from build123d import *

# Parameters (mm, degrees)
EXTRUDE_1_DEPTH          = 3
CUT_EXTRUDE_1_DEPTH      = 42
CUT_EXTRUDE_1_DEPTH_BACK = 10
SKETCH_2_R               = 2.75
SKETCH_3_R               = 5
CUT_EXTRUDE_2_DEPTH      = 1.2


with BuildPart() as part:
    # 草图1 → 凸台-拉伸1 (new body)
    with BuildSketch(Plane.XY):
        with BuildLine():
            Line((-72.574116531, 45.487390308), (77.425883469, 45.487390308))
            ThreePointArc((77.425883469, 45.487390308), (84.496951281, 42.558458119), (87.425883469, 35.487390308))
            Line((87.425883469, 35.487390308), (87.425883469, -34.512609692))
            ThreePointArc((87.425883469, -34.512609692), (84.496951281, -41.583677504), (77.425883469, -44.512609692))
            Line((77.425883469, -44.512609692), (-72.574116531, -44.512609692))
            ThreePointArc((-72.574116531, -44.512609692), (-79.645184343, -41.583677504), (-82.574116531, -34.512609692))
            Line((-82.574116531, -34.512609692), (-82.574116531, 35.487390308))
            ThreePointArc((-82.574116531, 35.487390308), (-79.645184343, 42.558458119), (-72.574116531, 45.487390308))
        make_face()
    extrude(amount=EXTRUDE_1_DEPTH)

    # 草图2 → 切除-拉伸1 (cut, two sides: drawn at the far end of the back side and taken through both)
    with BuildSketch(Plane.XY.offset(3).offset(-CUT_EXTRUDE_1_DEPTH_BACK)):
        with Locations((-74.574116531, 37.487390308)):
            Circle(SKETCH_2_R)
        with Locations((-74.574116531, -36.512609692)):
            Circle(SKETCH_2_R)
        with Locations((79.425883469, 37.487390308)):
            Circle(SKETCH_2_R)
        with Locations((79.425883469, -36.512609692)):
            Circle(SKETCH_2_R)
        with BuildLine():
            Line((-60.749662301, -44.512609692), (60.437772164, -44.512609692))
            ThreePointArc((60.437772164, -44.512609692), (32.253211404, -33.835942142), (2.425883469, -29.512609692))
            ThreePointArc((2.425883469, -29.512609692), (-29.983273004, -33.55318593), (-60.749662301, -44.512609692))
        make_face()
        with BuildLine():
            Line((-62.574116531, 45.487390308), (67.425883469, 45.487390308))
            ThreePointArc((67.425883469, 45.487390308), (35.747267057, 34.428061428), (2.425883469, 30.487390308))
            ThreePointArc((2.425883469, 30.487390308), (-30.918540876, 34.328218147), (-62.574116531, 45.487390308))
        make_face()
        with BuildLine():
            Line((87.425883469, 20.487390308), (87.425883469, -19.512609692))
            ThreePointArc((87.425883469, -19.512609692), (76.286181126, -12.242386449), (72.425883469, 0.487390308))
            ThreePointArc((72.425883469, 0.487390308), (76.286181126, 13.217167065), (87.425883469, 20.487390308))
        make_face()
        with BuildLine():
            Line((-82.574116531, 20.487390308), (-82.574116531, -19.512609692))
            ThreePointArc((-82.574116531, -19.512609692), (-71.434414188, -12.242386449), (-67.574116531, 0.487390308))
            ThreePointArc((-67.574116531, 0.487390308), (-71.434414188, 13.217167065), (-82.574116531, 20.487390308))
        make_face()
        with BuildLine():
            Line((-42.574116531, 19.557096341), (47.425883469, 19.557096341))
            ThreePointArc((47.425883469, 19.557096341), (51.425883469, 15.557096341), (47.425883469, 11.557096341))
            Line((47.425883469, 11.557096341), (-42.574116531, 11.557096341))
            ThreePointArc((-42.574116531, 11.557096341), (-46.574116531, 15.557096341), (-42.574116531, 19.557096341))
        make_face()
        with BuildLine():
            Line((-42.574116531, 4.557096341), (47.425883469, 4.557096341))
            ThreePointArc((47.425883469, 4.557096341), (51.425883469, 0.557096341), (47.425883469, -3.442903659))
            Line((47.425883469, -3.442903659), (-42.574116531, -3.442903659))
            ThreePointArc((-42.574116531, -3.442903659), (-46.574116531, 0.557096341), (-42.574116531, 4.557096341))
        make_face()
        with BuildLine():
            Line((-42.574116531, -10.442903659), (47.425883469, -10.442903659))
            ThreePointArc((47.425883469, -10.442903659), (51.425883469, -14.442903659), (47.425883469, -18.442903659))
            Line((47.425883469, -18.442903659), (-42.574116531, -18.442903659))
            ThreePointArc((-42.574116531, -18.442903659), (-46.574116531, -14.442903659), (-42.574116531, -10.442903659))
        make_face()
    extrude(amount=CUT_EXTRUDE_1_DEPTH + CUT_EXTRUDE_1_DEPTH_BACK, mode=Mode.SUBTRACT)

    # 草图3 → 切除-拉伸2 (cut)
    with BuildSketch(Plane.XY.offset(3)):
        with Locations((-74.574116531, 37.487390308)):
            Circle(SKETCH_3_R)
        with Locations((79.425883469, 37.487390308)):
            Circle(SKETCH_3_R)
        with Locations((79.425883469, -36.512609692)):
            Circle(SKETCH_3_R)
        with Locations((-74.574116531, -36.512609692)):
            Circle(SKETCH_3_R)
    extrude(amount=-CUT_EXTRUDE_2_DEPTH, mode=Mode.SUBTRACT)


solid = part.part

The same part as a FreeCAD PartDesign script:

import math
import FreeCAD as App
import Part
import Sketcher
Q = App.Units.Quantity

doc = App.newDocument("Part")
params = doc.addObject("Spreadsheet::Sheet", "Params")
for row, (alias, value) in enumerate([
    ("sketch1_radius", "10 mm"),
    ("sketch1_width", "150 mm"),
    ("sketch1_height", "70 mm"),
    ("pad1_length", "3 mm"),
    ("sketch2_radius", "150 mm"),
    ("sketch2_radius2", "4 mm"),
    ("sketch2_diameter", "5.5 mm"),
    ("sketch2_width", "130 mm"),
    ("sketch2_width2", "90 mm"),
    ("sketch3_diameter", "10 mm"),
    ("pocket2_length", "1.2 mm"),
], start=1):
    params.set(f"A{row}", alias)
    params.set(f"B{row}", "=" + value)
    params.setAlias(f"B{row}", alias)

body = doc.addObject("PartDesign::Body", "Body")

# Sketch on XY plane
sketch1 = body.newObject("Sketcher::SketchObject", "Sketch")
sketch1.AttachmentSupport = (doc.getObject("XY_Plane"), [""])
sketch1.MapMode = "FlatFace"
sketch1.addGeometry([
    Part.LineSegment(App.Vector(77, 45, 0), App.Vector(-73, 45, 0)),  # 0
    Part.ArcOfCircle(Part.Circle(App.Vector(-73, 35, 0), App.Vector(0, 0, 1), 10), math.radians(90), math.radians(180)),  # 1
    Part.LineSegment(App.Vector(-83, 35, 0), App.Vector(-83, -35, 0)),  # 2
    Part.ArcOfCircle(Part.Circle(App.Vector(-73, -35, 0), App.Vector(0, 0, 1), 10), math.radians(180), math.radians(270)),  # 3
    Part.LineSegment(App.Vector(-73, -45, 0), App.Vector(77, -45, 0)),  # 4
    Part.ArcOfCircle(Part.Circle(App.Vector(77, -35, 0), App.Vector(0, 0, 1), 10), math.radians(-90), math.radians(0)),  # 5
    Part.LineSegment(App.Vector(87, -35, 0), App.Vector(87, 35, 0)),  # 6
    Part.ArcOfCircle(Part.Circle(App.Vector(77, 35, 0), App.Vector(0, 0, 1), 10), math.radians(0), math.radians(90)),  # 7
], False)
sketch1.addConstraint([
    Sketcher.Constraint("Tangent", 0, 2, 1, 1),
    Sketcher.Constraint("Tangent", 1, 2, 2, 1),
    Sketcher.Constraint("Tangent", 2, 2, 3, 1),
    Sketcher.Constraint("Tangent", 3, 2, 4, 1),
    Sketcher.Constraint("Tangent", 4, 2, 5, 1),
    Sketcher.Constraint("Tangent", 5, 2, 6, 1),
    Sketcher.Constraint("Tangent", 6, 2, 7, 1),
    Sketcher.Constraint("Tangent", 7, 2, 0, 1),
    Sketcher.Constraint("Horizontal", 0),
    Sketcher.Constraint("Vertical", 2),
    Sketcher.Constraint("Horizontal", 4),
    Sketcher.Constraint("Vertical", 6),
    Sketcher.Constraint("Equal", 1, 3),
    Sketcher.Constraint("Equal", 3, 5),
    Sketcher.Constraint("Equal", 5, 7),
    Sketcher.Constraint("Radius", 1, Q("10 mm")),
    Sketcher.Constraint("DistanceX", 0, 2, 0, 1, Q("150 mm")),
    Sketcher.Constraint("DistanceY", 2, 2, 2, 1, Q("70 mm")),
    Sketcher.Constraint("DistanceY", -1, 1, 1, 3, Q("35.48739 mm")),
    Sketcher.Constraint("DistanceX", 1, 3, -1, 1, Q("72.574117 mm")),
])
sketch1.setExpression("Constraints[15]", "Params.sketch1_radius")
sketch1.setExpression("Constraints[16]", "Params.sketch1_width")
sketch1.setExpression("Constraints[17]", "Params.sketch1_height")
pad1 = body.newObject("PartDesign::Pad", "Pad")
pad1.Profile = sketch1
pad1.setExpression("Length", "Params.pad1_length")

# Sketch on XY plane
sketch2 = body.newObject("Sketcher::SketchObject", "Sketch001")
sketch2.AttachmentSupport = (doc.getObject("XY_Plane"), [""])
sketch2.MapMode = "FlatFace"
sketch2.AttachmentOffset = App.Placement(App.Vector(0, 0, 3), App.Rotation())
sketch2.addGeometry([
    Part.Circle(App.Vector(-74.6, 37.5, 0), App.Vector(0, 0, 1), 2.8),  # 0
    Part.Circle(App.Vector(-74.6, -36.5, 0), App.Vector(0, 0, 1), 2.8),  # 1
    Part.Circle(App.Vector(79.4, 37.5, 0), App.Vector(0, 0, 1), 2.8),  # 2
    Part.Circle(App.Vector(79.4, -36.5, 0), App.Vector(0, 0, 1), 2.8),  # 3
    Part.LineSegment(App.Vector(-60.7, -44.5, 0), App.Vector(60.4, -44.5, 0)),  # 4
    Part.ArcOfCircle(Part.Circle(App.Vector(-2.4, -167.8, 0), App.Vector(0, 0, 1), 138.4), math.radians(63), math.radians(88)),  # 5
    Part.ArcOfCircle(Part.Circle(App.Vector(4.7, -179.5, 0), App.Vector(0, 0, 1), 150), math.radians(91), math.radians(116)),  # 6
    Part.LineSegment(App.Vector(67.4, 45.5, 0), App.Vector(-62.6, 45.5, 0)),  # 7
    Part.ArcOfCircle(Part.Circle(App.Vector(2.8, 180.5, 0), App.Vector(0, 0, 1), 150), math.radians(-116), math.radians(-90)),  # 8
    Part.ArcOfCircle(Part.Circle(App.Vector(1.1, 184.6, 0), App.Vector(0, 0, 1), 154.1), math.radians(-90), math.radians(-65)),  # 9
    Part.LineSegment(App.Vector(87.4, -19.5, 0), App.Vector(87.4, 20.5, 0)),  # 10
    Part.ArcOfCircle(Part.Circle(App.Vector(91.8, 1.5, 0), App.Vector(0, 0, 1), 19.4), math.radians(103), math.radians(183)),  # 11
    Part.ArcOfCircle(Part.Circle(App.Vector(91.8, -0.6, 0), App.Vector(0, 0, 1), 19.4), math.radians(177), math.radians(257)),  # 12
    Part.LineSegment(App.Vector(-82.6, 20.5, 0), App.Vector(-82.6, -19.5, 0)),  # 13
    Part.ArcOfCircle(Part.Circle(App.Vector(-87, -0.6, 0), App.Vector(0, 0, 1), 19.4), math.radians(-77), math.radians(3)),  # 14
    Part.ArcOfCircle(Part.Circle(App.Vector(-87, 1.5, 0), App.Vector(0, 0, 1), 19.4), math.radians(-3), math.radians(77)),  # 15
    Part.LineSegment(App.Vector(47.4, 19.6, 0), App.Vector(-42.6, 19.6, 0)),  # 16
    Part.ArcOfCircle(Part.Circle(App.Vector(-42.6, 15.6, 0), App.Vector(0, 0, 1), 4), math.radians(90), math.radians(270)),  # 17
    Part.LineSegment(App.Vector(-42.6, 11.6, 0), App.Vector(47.4, 11.6, 0)),  # 18
    Part.ArcOfCircle(Part.Circle(App.Vector(47.4, 15.6, 0), App.Vector(0, 0, 1), 4), math.radians(-90), math.radians(90)),  # 19
    Part.LineSegment(App.Vector(47.4, 4.6, 0), App.Vector(-42.6, 4.6, 0)),  # 20
    Part.ArcOfCircle(Part.Circle(App.Vector(-42.6, 0.6, 0), App.Vector(0, 0, 1), 4), math.radians(90), math.radians(270)),  # 21
    Part.LineSegment(App.Vector(-42.6, -3.4, 0), App.Vector(47.4, -3.4, 0)),  # 22
    Part.ArcOfCircle(Part.Circle(App.Vector(47.4, 0.6, 0), App.Vector(0, 0, 1), 4), math.radians(-90), math.radians(90)),  # 23
    Part.LineSegment(App.Vector(47.4, -10.4, 0), App.Vector(-42.6, -10.4, 0)),  # 24
    Part.ArcOfCircle(Part.Circle(App.Vector(-42.6, -14.4, 0), App.Vector(0, 0, 1), 4), math.radians(90), math.radians(270)),  # 25
    Part.LineSegment(App.Vector(-42.6, -18.4, 0), App.Vector(47.4, -18.4, 0)),  # 26
    Part.ArcOfCircle(Part.Circle(App.Vector(47.4, -14.4, 0), App.Vector(0, 0, 1), 4), math.radians(-90), math.radians(90)),  # 27
], False)
sketch2.addConstraint([
    Sketcher.Constraint("Coincident", 4, 2, 5, 1),
    Sketcher.Constraint("Coincident", 5, 2, 6, 1),
    Sketcher.Constraint("Coincident", 6, 2, 4, 1),
    Sketcher.Constraint("Coincident", 7, 2, 8, 1),
    Sketcher.Constraint("Coincident", 8, 2, 9, 1),
    Sketcher.Constraint("Coincident", 9, 2, 7, 1),
    Sketcher.Constraint("Coincident", 10, 2, 11, 1),
    Sketcher.Constraint("Coincident", 11, 2, 12, 1),
    Sketcher.Constraint("Coincident", 12, 2, 10, 1),
    Sketcher.Constraint("Coincident", 13, 2, 14, 1),
    Sketcher.Constraint("Coincident", 14, 2, 15, 1),
    Sketcher.Constraint("Coincident", 15, 2, 13, 1),
    Sketcher.Constraint("Tangent", 16, 2, 17, 1),
    Sketcher.Constraint("Tangent", 17, 2, 18, 1),
    Sketcher.Constraint("Tangent", 18, 2, 19, 1),
    Sketcher.Constraint("Tangent", 19, 2, 16, 1),
    Sketcher.Constraint("Tangent", 20, 2, 21, 1),
    Sketcher.Constraint("Tangent", 21, 2, 22, 1),
    Sketcher.Constraint("Tangent", 22, 2, 23, 1),
    Sketcher.Constraint("Tangent", 23, 2, 20, 1),
    Sketcher.Constraint("Tangent", 24, 2, 25, 1),
    Sketcher.Constraint("Tangent", 25, 2, 26, 1),
    Sketcher.Constraint("Tangent", 26, 2, 27, 1),
    Sketcher.Constraint("Tangent", 27, 2, 24, 1),
    Sketcher.Constraint("Horizontal", 4),
    Sketcher.Constraint("Horizontal", 7),
    Sketcher.Constraint("Vertical", 10),
    Sketcher.Constraint("Vertical", 13),
    Sketcher.Constraint("Horizontal", 16),
    Sketcher.Constraint("Horizontal", 18),
    Sketcher.Constraint("Horizontal", 20),
    Sketcher.Constraint("Horizontal", 22),
    Sketcher.Constraint("Horizontal", 24),
    Sketcher.Constraint("Horizontal", 26),
    Sketcher.Constraint("Equal", 0, 1),
    Sketcher.Constraint("Equal", 1, 2),
    Sketcher.Constraint("Equal", 2, 3),
    Sketcher.Constraint("Equal", 6, 8),
    Sketcher.Constraint("Equal", 11, 12),
    Sketcher.Constraint("Equal", 12, 14),
    Sketcher.Constraint("Equal", 14, 15),
    Sketcher.Constraint("Equal", 19, 21),
    Sketcher.Constraint("Equal", 23, 25),
    Sketcher.Constraint("Horizontal", 0, 3, 2, 3),
    Sketcher.Constraint("Horizontal", 1, 3, 3, 3),
    Sketcher.Constraint("Horizontal", 12, 3, 14, 3),
    Sketcher.Constraint("Horizontal", 11, 3, 15, 3),
    Sketcher.Constraint("Horizontal", 12, 2, 13, 2),
    Sketcher.Constraint("Horizontal", 11, 2, 14, 2),
    Sketcher.Constraint("Vertical", 0, 3, 1, 3),
    Sketcher.Constraint("Vertical", 2, 3, 3, 3),
    Sketcher.Constraint("Vertical", 11, 3, 12, 3),
    Sketcher.Constraint("Vertical", 17, 3, 21, 3),
    Sketcher.Constraint("Vertical", 19, 3, 23, 3),
    Sketcher.Constraint("Vertical", 21, 3, 25, 3),
    Sketcher.Constraint("Vertical", 23, 3, 27, 3),
    Sketcher.Constraint("Vertical", 5, 2, 8, 2),
    Sketcher.Constraint("Radius", 6, Q("150 mm")),
    Sketcher.Constraint("Radius", 17, Q("4 mm")),
    Sketcher.Constraint("Diameter", 0, Q("5.5 mm")),
    Sketcher.Constraint("DistanceX", 7, 2, 7, 1, Q("130 mm")),
    Sketcher.Constraint("DistanceX", 16, 2, 16, 1, Q("90 mm")),
    Sketcher.Constraint("DistanceY", 10, 1, 10, 2, Q("40 mm")),
    Sketcher.Constraint("DistanceY", 1, 3, 0, 3, Q("74 mm")),
    Sketcher.Constraint("DistanceX", 0, 3, 2, 3, Q("154 mm")),
    Sketcher.Constraint("DistanceX", 0, 3, 17, 3, Q("32 mm")),
    Sketcher.Constraint("DistanceY", 21, 3, 17, 3, Q("15 mm")),
    Sketcher.Constraint("DistanceY", 25, 3, 21, 3, Q("15 mm")),
    Sketcher.Constraint("DistanceY", 4, 2, 3, 3, Q("8 mm")),
    Sketcher.Constraint("DistanceX", 5, 2, 27, 3, Q("45 mm")),
    Sketcher.Constraint("DistanceY", 4, 2, 5, 2, Q("15 mm")),
    Sketcher.Constraint("DistanceX", 0, 3, 7, 2, Q("12 mm")),
    Sketcher.Constraint("DistanceY", 0, 3, 7, 2, Q("8 mm")),
    Sketcher.Constraint("DistanceY", 5, 2, 8, 2, Q("60 mm")),
    Sketcher.Constraint("DistanceX", 2, 3, 10, 2, Q("8 mm")),
    Sketcher.Constraint("DistanceY", 10, 2, 2, 3, Q("17 mm")),
    Sketcher.Constraint("DistanceX", 11, 2, 10, 2, Q("15 mm")),
    Sketcher.Constraint("DistanceX", 13, 2, 1, 3, Q("8 mm")),
    Sketcher.Constraint("Radius", 9, Q("154.103768 mm")),
    Sketcher.Constraint("Radius", 5, Q("138.421457 mm")),
    Sketcher.Constraint("Radius", 11, Q("19.446548 mm")),
    Sketcher.Constraint("DistanceX", 4, 1, 4, 2, Q("121.187434 mm")),
    Sketcher.Constraint("DistanceY", -1, 1, 0, 3, Q("37.48739 mm")),
    Sketcher.Constraint("DistanceY", 5, 3, -1, 1, Q("167.84997 mm")),
    Sketcher.Constraint("DistanceX", -1, 1, 9, 3, Q("1.09557 mm")),
    Sketcher.Constraint("DistanceY", -1, 1, 17, 3, Q("15.557096 mm")),
])
sketch2.setExpression("Constraints[57]", "Params.sketch2_radius")
sketch2.setExpression("Constraints[58]", "Params.sketch2_radius2")
sketch2.setExpression("Constraints[59]", "Params.sketch2_diameter")
sketch2.setExpression("Constraints[60]", "Params.sketch2_width")
sketch2.setExpression("Constraints[61]", "Params.sketch2_width2")
pocket1 = body.newObject("PartDesign::Pocket", "Pocket")
pocket1.Profile = sketch2
pocket1.Type = "ThroughAll"
pocket1.Midplane = True

# Sketch on XY plane
sketch3 = body.newObject("Sketcher::SketchObject", "Sketch002")
sketch3.AttachmentSupport = (doc.getObject("XY_Plane"), [""])
sketch3.MapMode = "FlatFace"
sketch3.AttachmentOffset = App.Placement(App.Vector(0, 0, 3), App.Rotation())
sketch3.addGeometry([
    Part.Circle(App.Vector(-75, 37, 0), App.Vector(0, 0, 1), 5),
    Part.Circle(App.Vector(79, 37, 0), App.Vector(0, 0, 1), 5),
    Part.Circle(App.Vector(79, -37, 0), App.Vector(0, 0, 1), 5),
    Part.Circle(App.Vector(-75, -37, 0), App.Vector(0, 0, 1), 5),
], False)
sketch3.addConstraint([
    Sketcher.Constraint("Equal", 0, 1),
    Sketcher.Constraint("Equal", 1, 2),
    Sketcher.Constraint("Equal", 2, 3),
    Sketcher.Constraint("Horizontal", 0, 3, 1, 3),
    Sketcher.Constraint("Horizontal", 2, 3, 3, 3),
    Sketcher.Constraint("Vertical", 1, 3, 2, 3),
    Sketcher.Constraint("Vertical", 0, 3, 3, 3),
    Sketcher.Constraint("Diameter", 0, Q("10 mm")),
    Sketcher.Constraint("DistanceX", 0, 3, 1, 3, Q("154 mm")),
    Sketcher.Constraint("DistanceY", 2, 3, 1, 3, Q("74 mm")),
    Sketcher.Constraint("DistanceY", -1, 1, 0, 3, Q("37.48739 mm")),
    Sketcher.Constraint("DistanceX", 0, 3, -1, 1, Q("74.574117 mm")),
])
sketch3.setExpression("Constraints[7]", "Params.sketch3_diameter")
pocket2 = body.newObject("PartDesign::Pocket", "Pocket001")
pocket2.Profile = sketch3
pocket2.setExpression("Length", "Params.pocket2_length")

doc.recompute()
